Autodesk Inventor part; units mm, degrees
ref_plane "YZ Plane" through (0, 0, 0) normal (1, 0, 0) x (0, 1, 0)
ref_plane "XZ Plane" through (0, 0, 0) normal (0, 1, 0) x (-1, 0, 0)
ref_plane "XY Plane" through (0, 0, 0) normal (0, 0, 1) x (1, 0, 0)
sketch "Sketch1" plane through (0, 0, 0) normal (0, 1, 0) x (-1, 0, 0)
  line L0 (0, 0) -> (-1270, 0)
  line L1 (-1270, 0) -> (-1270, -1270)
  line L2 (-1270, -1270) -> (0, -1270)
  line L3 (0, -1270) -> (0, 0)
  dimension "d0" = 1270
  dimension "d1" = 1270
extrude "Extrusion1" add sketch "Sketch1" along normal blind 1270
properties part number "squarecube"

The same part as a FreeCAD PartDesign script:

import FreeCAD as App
import Part
import Sketcher
Q = App.Units.Quantity


def add_polygon(sketch, points):
    """Adds a closed chain of lines whose ends are joined by coincident constraints."""
    first, n = sketch.GeometryCount, len(points)
    for a, b in zip(points, points[1:] + points[:1]):
        sketch.addGeometry(Part.LineSegment(App.Vector(*a, 0), App.Vector(*b, 0)), False)
    for i in range(n):
        sketch.addConstraint(Sketcher.Constraint("Coincident", first + i, 2, first + (i + 1) % n, 1))

doc = App.newDocument("Part")
body = doc.addObject("PartDesign::Body", "Body")

sketch1 = doc.addObject("Sketcher::SketchObject", "Sketch")
body.addObject(sketch1)
sketch1.AttachmentSupport = (doc.XZ_Plane, [""])
sketch1.MapMode = "FlatFace"
add_polygon(sketch1, [(0, -1270), (0, 0), (1270, 0), (1270, -1270)])
sketch1.addConstraint([
    Sketcher.Constraint("Vertical", 0),
    Sketcher.Constraint("Horizontal", 1),
    Sketcher.Constraint("Vertical", 2),
    Sketcher.Constraint("Horizontal", 3),
    Sketcher.Constraint("Coincident", 0, 2, -1, 1),
    Sketcher.Constraint("Equal", 3, 0),
    Sketcher.Constraint("DistanceX", 1, 1, 1, 2, Q("50 in")),
])
pad1 = doc.addObject("PartDesign::Pad", "Pad")
body.addObject(pad1)
pad1.Profile = sketch1
pad1.Length = Q("50 in")
pad1.Reversed = True

doc.recompute()
